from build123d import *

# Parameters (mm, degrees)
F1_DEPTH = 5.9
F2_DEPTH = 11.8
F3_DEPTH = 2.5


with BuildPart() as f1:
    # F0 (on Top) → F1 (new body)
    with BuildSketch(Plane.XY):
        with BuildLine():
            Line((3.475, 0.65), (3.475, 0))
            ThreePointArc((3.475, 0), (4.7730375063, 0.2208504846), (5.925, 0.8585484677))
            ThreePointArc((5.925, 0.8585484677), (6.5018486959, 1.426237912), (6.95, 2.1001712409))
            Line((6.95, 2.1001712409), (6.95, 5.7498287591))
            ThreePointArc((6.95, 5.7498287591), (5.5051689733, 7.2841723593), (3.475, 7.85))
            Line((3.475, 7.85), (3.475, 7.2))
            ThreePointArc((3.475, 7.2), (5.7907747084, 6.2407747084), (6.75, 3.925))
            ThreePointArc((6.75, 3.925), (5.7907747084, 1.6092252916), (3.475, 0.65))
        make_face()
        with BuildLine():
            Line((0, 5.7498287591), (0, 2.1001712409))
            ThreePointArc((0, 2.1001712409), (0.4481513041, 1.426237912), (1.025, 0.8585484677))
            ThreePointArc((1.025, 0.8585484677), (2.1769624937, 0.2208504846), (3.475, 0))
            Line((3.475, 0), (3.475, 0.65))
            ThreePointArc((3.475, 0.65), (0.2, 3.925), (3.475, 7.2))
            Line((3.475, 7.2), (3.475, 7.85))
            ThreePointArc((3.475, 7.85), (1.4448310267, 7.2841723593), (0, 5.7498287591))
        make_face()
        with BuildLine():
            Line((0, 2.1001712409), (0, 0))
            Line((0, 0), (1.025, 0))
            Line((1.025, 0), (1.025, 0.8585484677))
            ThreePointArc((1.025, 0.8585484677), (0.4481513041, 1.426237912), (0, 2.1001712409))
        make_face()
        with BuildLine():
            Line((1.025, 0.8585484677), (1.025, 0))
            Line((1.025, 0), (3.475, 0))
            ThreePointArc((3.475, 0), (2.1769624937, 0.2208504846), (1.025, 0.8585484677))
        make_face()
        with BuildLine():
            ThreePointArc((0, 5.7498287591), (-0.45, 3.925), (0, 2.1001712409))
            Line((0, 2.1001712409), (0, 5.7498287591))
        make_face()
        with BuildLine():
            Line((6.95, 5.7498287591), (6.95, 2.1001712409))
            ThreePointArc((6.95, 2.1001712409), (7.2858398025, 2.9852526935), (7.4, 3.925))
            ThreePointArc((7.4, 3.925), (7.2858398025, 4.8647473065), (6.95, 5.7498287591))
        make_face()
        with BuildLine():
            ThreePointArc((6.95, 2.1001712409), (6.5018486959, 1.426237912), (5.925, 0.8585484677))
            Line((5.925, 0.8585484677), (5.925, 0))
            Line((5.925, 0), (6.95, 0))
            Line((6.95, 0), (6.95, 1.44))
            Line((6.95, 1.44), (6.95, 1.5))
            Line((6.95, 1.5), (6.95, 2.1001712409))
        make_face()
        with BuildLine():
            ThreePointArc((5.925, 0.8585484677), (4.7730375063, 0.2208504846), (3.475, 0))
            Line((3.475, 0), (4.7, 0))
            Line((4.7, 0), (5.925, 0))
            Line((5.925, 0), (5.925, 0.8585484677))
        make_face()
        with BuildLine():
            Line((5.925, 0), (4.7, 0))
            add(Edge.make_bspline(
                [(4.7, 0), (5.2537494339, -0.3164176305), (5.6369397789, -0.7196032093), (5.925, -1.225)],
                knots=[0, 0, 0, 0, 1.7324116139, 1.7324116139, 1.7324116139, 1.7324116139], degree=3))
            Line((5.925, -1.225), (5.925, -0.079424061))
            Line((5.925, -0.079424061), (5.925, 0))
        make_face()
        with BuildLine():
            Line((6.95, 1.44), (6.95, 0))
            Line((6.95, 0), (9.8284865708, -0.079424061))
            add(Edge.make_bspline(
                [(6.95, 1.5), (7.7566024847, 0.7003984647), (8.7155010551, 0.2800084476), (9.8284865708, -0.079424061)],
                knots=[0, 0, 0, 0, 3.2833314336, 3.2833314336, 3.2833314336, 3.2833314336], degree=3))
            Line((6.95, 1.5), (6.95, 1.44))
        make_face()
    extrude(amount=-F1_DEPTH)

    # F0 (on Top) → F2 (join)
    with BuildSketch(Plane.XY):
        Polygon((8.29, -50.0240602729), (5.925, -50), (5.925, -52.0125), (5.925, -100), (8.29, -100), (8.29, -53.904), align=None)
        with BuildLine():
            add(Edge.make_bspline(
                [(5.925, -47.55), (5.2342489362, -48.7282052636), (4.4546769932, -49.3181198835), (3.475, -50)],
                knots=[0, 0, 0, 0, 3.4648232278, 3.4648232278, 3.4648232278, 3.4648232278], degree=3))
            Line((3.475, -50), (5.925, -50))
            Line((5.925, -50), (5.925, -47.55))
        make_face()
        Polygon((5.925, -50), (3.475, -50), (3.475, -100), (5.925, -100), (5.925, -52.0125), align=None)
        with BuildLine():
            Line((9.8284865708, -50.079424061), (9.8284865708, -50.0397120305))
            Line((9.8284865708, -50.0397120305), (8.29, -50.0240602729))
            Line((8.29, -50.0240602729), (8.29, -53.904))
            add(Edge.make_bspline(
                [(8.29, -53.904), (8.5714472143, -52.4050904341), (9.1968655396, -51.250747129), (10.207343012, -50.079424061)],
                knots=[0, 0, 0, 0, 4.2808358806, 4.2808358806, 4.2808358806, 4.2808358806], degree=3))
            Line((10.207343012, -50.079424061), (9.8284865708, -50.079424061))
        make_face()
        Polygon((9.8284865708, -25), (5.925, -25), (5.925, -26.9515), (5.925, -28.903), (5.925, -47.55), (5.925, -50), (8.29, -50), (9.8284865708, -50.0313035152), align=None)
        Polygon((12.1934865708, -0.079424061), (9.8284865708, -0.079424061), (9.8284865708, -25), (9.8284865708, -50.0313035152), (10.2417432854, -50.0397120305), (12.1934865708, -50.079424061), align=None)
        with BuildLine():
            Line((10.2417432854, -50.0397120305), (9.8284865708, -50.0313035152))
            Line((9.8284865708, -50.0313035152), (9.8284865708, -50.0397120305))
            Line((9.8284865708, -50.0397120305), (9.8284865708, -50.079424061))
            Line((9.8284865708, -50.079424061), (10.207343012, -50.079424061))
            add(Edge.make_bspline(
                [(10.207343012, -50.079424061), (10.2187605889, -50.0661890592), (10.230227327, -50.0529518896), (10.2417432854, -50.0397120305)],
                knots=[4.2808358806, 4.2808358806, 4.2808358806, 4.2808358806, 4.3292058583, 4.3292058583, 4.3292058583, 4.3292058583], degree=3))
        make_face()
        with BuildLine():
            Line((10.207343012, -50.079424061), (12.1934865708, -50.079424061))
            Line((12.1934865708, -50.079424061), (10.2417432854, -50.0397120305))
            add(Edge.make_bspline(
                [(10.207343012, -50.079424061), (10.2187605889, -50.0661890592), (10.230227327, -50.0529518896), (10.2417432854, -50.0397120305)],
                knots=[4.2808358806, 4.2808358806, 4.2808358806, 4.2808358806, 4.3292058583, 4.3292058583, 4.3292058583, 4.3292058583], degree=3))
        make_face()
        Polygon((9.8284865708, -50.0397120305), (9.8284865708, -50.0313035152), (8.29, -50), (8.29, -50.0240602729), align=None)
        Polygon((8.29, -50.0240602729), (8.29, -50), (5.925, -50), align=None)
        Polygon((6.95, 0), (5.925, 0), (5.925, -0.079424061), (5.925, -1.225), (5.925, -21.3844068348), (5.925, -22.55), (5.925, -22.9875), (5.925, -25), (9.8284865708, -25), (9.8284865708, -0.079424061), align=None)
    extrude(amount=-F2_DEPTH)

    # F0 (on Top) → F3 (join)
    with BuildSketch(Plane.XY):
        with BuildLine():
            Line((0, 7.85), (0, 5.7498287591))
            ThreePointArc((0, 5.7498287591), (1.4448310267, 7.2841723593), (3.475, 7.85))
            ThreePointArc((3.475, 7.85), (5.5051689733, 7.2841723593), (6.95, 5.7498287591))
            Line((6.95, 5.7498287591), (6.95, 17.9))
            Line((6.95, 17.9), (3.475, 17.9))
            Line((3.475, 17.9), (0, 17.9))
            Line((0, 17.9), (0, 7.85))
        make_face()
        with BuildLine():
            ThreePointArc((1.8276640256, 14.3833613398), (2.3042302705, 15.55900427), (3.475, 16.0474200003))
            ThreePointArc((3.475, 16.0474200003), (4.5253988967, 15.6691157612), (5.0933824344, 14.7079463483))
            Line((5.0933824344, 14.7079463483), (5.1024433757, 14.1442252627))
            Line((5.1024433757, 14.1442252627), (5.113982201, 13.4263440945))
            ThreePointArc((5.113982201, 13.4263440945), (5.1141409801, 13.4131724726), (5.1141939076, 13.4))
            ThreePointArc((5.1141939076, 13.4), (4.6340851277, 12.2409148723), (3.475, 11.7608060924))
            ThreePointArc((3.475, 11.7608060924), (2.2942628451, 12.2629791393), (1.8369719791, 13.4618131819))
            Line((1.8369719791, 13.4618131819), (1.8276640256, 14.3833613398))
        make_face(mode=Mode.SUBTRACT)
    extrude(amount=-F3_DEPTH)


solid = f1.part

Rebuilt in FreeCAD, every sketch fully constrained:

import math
import FreeCAD as App
import Part
import Sketcher
Q = App.Units.Quantity

doc = App.newDocument("Part")
body = doc.addObject("PartDesign::Body", "Body")

# Sketch on XY plane
sketch1 = doc.addObject("Sketcher::SketchObject", "Sketch")
body.addObject(sketch1)
sketch1.AttachmentSupport = (doc.XY_Plane, [""])
sketch1.MapMode = "FlatFace"
sketch1.addGeometry([
    Part.LineSegment(App.Vector(6.95, 1.5, 0), App.Vector(6.95, 2.100171, 0)),  # 0
    Part.ArcOfCircle(Part.Circle(App.Vector(3.475, 3.925, 0), App.Vector(0, 0, 1), 3.925), math.radians(-27.705338), math.radians(0)),  # 1
    Part.ArcOfCircle(Part.Circle(App.Vector(3.475, 3.925, 0), App.Vector(0, 0, 1), 3.925), math.radians(0), math.radians(27.705338)),  # 2
    Part.ArcOfCircle(Part.Circle(App.Vector(3.475, 3.925, 0), App.Vector(0, 0, 1), 3.925), math.radians(27.705338), math.radians(90)),  # 3
    Part.ArcOfCircle(Part.Circle(App.Vector(3.475, 3.925, 0), App.Vector(0, 0, 1), 3.925), math.radians(90), math.radians(152.294662)),  # 4
    Part.ArcOfCircle(Part.Circle(App.Vector(3.475, 3.925, 0), App.Vector(0, 0, 1), 3.925), math.radians(152.294662), math.radians(207.705338)),  # 5
    Part.LineSegment(App.Vector(0, 2.100171, 0), App.Vector(0, 0, 0)),  # 6
    Part.LineSegment(App.Vector(0, 0, 0), App.Vector(4.7, 0, 0)),  # 7
    Part.BSplineCurve([App.Vector(4.7, 0, 0), App.Vector(5.253749, -0.316418, 0), App.Vector(5.63694, -0.719603, 0), App.Vector(5.925, -1.225, 0)], [4, 4], [0, 1.732411614], False, 3, [1, 1, 1, 1], False),  # 8
    Part.LineSegment(App.Vector(5.925, -1.225, 0), App.Vector(5.925, 0, 0)),  # 9
    Part.LineSegment(App.Vector(5.925, 0, 0), App.Vector(6.95, 0, 0)),  # 10
    Part.LineSegment(App.Vector(6.95, 0, 0), App.Vector(9.828487, -0.079424, 0)),  # 11
    Part.BSplineCurve([App.Vector(6.95, 1.5, 0), App.Vector(7.756602, 0.700398, 0), App.Vector(8.715501, 0.280008, 0), App.Vector(9.828487, -0.079424, 0)], [4, 4], [0, 3.283331434], False, 3, [1, 1, 1, 1], False),  # 12
    Part.ArcOfCircle(Part.Circle(App.Vector(3.475, 3.925, 0), App.Vector(0, 0, 1), 3.275), math.radians(0), math.radians(90)),  # 13
    Part.ArcOfCircle(Part.Circle(App.Vector(3.475, 3.925, 0), App.Vector(0, 0, 1), 3.275), math.radians(-90), math.radians(0)),  # 14
    Part.ArcOfCircle(Part.Circle(App.Vector(3.475, 3.925, 0), App.Vector(0, 0, 1), 3.275), math.radians(90), math.radians(270)),  # 15
], False)
sketch1.addConstraint([
    Sketcher.Constraint("Block", 8),
    Sketcher.Constraint("Block", 12),
    Sketcher.Constraint("Coincident", 0, 2, 1, 1),
    Sketcher.Constraint("Tangent", 1, 2, 2, 1),
    Sketcher.Constraint("Tangent", 2, 2, 3, 1),
    Sketcher.Constraint("Tangent", 3, 2, 4, 1),
    Sketcher.Constraint("Tangent", 4, 2, 5, 1),
    Sketcher.Constraint("Coincident", 5, 2, 6, 1),
    Sketcher.Constraint("Coincident", 6, 2, 7, 1),
    Sketcher.Constraint("Coincident", 7, 2, 8, 1),
    Sketcher.Constraint("Coincident", 8, 2, 9, 1),
    Sketcher.Constraint("Coincident", 9, 2, 10, 1),
    Sketcher.Constraint("Coincident", 10, 2, 11, 1),
    Sketcher.Constraint("Coincident", 11, 2, 12, 2),
    Sketcher.Constraint("Coincident", 12, 1, 0, 1),
    Sketcher.Constraint("Tangent", 13, 1, 14, 2),
    Sketcher.Constraint("Tangent", 14, 1, 15, 2),
    Sketcher.Constraint("Tangent", 15, 1, 13, 2),
    Sketcher.Constraint("Vertical", 0),
    Sketcher.Constraint("Vertical", 6),
    Sketcher.Constraint("Horizontal", 7),
    Sketcher.Constraint("Vertical", 9),
    Sketcher.Constraint("Horizontal", 10),
    Sketcher.Constraint("Coincident", 3, 3, 1, 3),
    Sketcher.Constraint("Coincident", 5, 3, 1, 3),
    Sketcher.Constraint("Coincident", 13, 3, 1, 3),
    Sketcher.Constraint("PointOnObject", 4, 2, -2),
    Sketcher.Constraint("PointOnObject", 5, 2, -2),
    Sketcher.Constraint("PointOnObject", 9, 2, -1),
    Sketcher.Constraint("Horizontal", 15, 3, 1, 2),
    Sketcher.Constraint("Horizontal", 2, 2, 4, 2),
    Sketcher.Constraint("Horizontal", 0, 2, 5, 2),
    Sketcher.Constraint("Horizontal", 1, 2, 13, 1),
    Sketcher.Constraint("Vertical", 15, 3, 3, 2),
    Sketcher.Constraint("Vertical", 2, 2, 10, 2),
    Sketcher.Constraint("Vertical", 3, 2, 14, 1),
    Sketcher.Constraint("Vertical", 14, 1, 15, 1),
    Sketcher.Constraint("Radius", 1, Q("3.925 mm")),
    Sketcher.Constraint("Radius", 13, Q("3.275 mm")),
    Sketcher.Constraint("DistanceY", -1, 1, 15, 1, Q("7.2 mm")),
])
pad1 = doc.addObject("PartDesign::Pad", "Pad")
body.addObject(pad1)
pad1.Profile = sketch1
pad1.Length = 5.9
pad1.Reversed = True

# Sketch on XY plane
sketch2 = doc.addObject("Sketcher::SketchObject", "Sketch001")
body.addObject(sketch2)
sketch2.AttachmentSupport = (doc.XY_Plane, [""])
sketch2.MapMode = "FlatFace"
sketch2.addGeometry([
    Part.LineSegment(App.Vector(12.193487, -50.079424, 0), App.Vector(12.193487, -0.079424, 0)),  # 0
    Part.LineSegment(App.Vector(12.193487, -0.079424, 0), App.Vector(9.828487, -0.079424, 0)),  # 1
    Part.LineSegment(App.Vector(9.828487, -0.079424, 0), App.Vector(6.95, 0, 0)),  # 2
    Part.LineSegment(App.Vector(6.95, 0, 0), App.Vector(5.925, 0, 0)),  # 3
    Part.LineSegment(App.Vector(5.925, 0, 0), App.Vector(5.925, -47.55, 0)),  # 4
    Part.BSplineCurve([App.Vector(5.925, -47.55, 0), App.Vector(5.234249, -48.728205, 0), App.Vector(4.454677, -49.31812, 0), App.Vector(3.475, -50, 0)], [4, 4], [0, 3.464823228], False, 3, [1, 1, 1, 1], False),  # 5
    Part.LineSegment(App.Vector(3.475, -50, 0), App.Vector(3.475, -100, 0)),  # 6
    Part.LineSegment(App.Vector(3.475, -100, 0), App.Vector(8.29, -100, 0)),  # 7
    Part.LineSegment(App.Vector(8.29, -100, 0), App.Vector(8.29, -53.904, 0)),  # 8
    Part.BSplineCurve([App.Vector(8.29, -53.904, 0), App.Vector(8.571447, -52.40509, 0), App.Vector(9.196866, -51.250747, 0), App.Vector(10.207343, -50.079424, 0)], [4, 4], [0, 4.280835881], False, 3, [1, 1, 1, 1], False),  # 9
    Part.LineSegment(App.Vector(10.207343, -50.079424, 0), App.Vector(12.193487, -50.079424, 0)),  # 10
], False)
sketch2.addConstraint([
    Sketcher.Constraint("Block", 5),
    Sketcher.Constraint("Block", 9),
    Sketcher.Constraint("Coincident", 0, 2, 1, 1),
    Sketcher.Constraint("Coincident", 1, 2, 2, 1),
    Sketcher.Constraint("Coincident", 2, 2, 3, 1),
    Sketcher.Constraint("Coincident", 3, 2, 4, 1),
    Sketcher.Constraint("Coincident", 4, 2, 5, 1),
    Sketcher.Constraint("Coincident", 5, 2, 6, 1),
    Sketcher.Constraint("Coincident", 6, 2, 7, 1),
    Sketcher.Constraint("Coincident", 7, 2, 8, 1),
    Sketcher.Constraint("Coincident", 8, 2, 9, 1),
    Sketcher.Constraint("Coincident", 9, 2, 10, 1),
    Sketcher.Constraint("Coincident", 10, 2, 0, 1),
    Sketcher.Constraint("Vertical", 0),
    Sketcher.Constraint("Horizontal", 1),
    Sketcher.Constraint("Horizontal", 3),
    Sketcher.Constraint("Vertical", 4),
    Sketcher.Constraint("Vertical", 6),
    Sketcher.Constraint("Horizontal", 7),
    Sketcher.Constraint("Vertical", 8),
    Sketcher.Constraint("Horizontal", 10),
    Sketcher.Constraint("PointOnObject", 2, 2, -1),
    Sketcher.Constraint("Equal", 0, 6),
    Sketcher.Constraint("DistanceY", 0, 1, 0, 2, Q("50 mm")),
    Sketcher.Constraint("DistanceX", 1, 2, 1, 1, Q("2.365 mm")),
    Sketcher.Constraint("DistanceX", 3, 2, 3, 1, Q("1.025 mm")),
    Sketcher.Constraint("DistanceX", 10, 1, 10, 2, Q("1.986144 mm")),
])
pad2 = doc.addObject("PartDesign::Pad", "Pad001")
body.addObject(pad2)
pad2.Profile = sketch2
pad2.Length = 11.8
pad2.Reversed = True

# Sketch on XY plane
sketch3 = doc.addObject("Sketcher::SketchObject", "Sketch002")
body.addObject(sketch3)
sketch3.AttachmentSupport = (doc.XY_Plane, [""])
sketch3.MapMode = "FlatFace"
sketch3.addGeometry([
    Part.ArcOfCircle(Part.Circle(App.Vector(3.475, 3.925, 0), App.Vector(0, 0, 1), 3.925), math.radians(90), math.radians(152)),  # 0
    Part.ArcOfCircle(Part.Circle(App.Vector(3.475, 3.925, 0), App.Vector(0, 0, 1), 3.925), math.radians(28), math.radians(90)),  # 1
    Part.LineSegment(App.Vector(6.95, 5.75, 0), App.Vector(6.95, 17.9, 0)),  # 2
    Part.LineSegment(App.Vector(6.95, 17.9, 0), App.Vector(0, 17.9, 0)),  # 3
    Part.LineSegment(App.Vector(0, 17.9, 0), App.Vector(0, 5.75, 0)),  # 4
    Part.LineSegment(App.Vector(1.837, 13.462, 0), App.Vector(1.828, 14.383, 0)),  # 5
    Part.ArcOfCircle(Part.Circle(App.Vector(3.475, 14.4, 0), App.Vector(0, 0, 1), 1.647), math.radians(90), math.radians(181)),  # 6
    Part.ArcOfCircle(Part.Circle(App.Vector(3.475, 14.4, 0), App.Vector(0, 0, 1), 1.647), math.radians(11), math.radians(90)),  # 7
    Part.LineSegment(App.Vector(5.093, 14.708, 0), App.Vector(5.102, 14.144, 0)),  # 8
    Part.LineSegment(App.Vector(5.102, 14.144, 0), App.Vector(5.114, 13.426, 0)),  # 9
    Part.ArcOfCircle(Part.Circle(App.Vector(3.475, 13.4, 0), App.Vector(0, 0, 1), 1.639), math.radians(0), math.radians(0.92)),  # 10
    Part.ArcOfCircle(Part.Circle(App.Vector(3.475, 13.4, 0), App.Vector(0, 0, 1), 1.639), math.radians(-90), math.radians(0)),  # 11
    Part.ArcOfCircle(Part.Circle(App.Vector(3.475, 13.4, 0), App.Vector(0, 0, 1), 1.639), math.radians(178), math.radians(270)),  # 12
], False)
sketch3.addConstraint([
    Sketcher.Constraint("Tangent", 0, 1, 1, 2),
    Sketcher.Constraint("Coincident", 1, 1, 2, 1),
    Sketcher.Constraint("Coincident", 2, 2, 3, 1),
    Sketcher.Constraint("Coincident", 3, 2, 4, 1),
    Sketcher.Constraint("Coincident", 4, 2, 0, 2),
    Sketcher.Constraint("Tangent", 5, 2, 6, 2),
    Sketcher.Constraint("Tangent", 6, 1, 7, 2),
    Sketcher.Constraint("Coincident", 7, 1, 8, 1),
    Sketcher.Constraint("Coincident", 8, 2, 9, 1),
    Sketcher.Constraint("Tangent", 9, 2, 10, 2),
    Sketcher.Constraint("Tangent", 10, 1, 11, 2),
    Sketcher.Constraint("Tangent", 11, 1, 12, 2),
    Sketcher.Constraint("Coincident", 12, 1, 5, 1),
    Sketcher.Constraint("Vertical", 2),
    Sketcher.Constraint("Horizontal", 3),
    Sketcher.Constraint("Vertical", 4),
    Sketcher.Constraint("Coincident", 12, 3, 10, 3),
    Sketcher.Constraint("Equal", 0, 1),
    Sketcher.Constraint("Equal", 6, 7),
    Sketcher.Constraint("PointOnObject", 3, 2, -2),
    Sketcher.Constraint("Parallel", 8, 9),
    Sketcher.Constraint("Horizontal", 1, 1, 4, 2),
    Sketcher.Constraint("Horizontal", 12, 3, 10, 1),
    Sketcher.Constraint("Vertical", 1, 3, 6, 3),
    Sketcher.Constraint("Vertical", 7, 3, 10, 3),
    Sketcher.Constraint("Vertical", 12, 3, 0, 1),
    Sketcher.Constraint("Vertical", 0, 1, 6, 1),
    Sketcher.Constraint("Vertical", 6, 1, 11, 1),
    Sketcher.Constraint("Radius", 0, Q("3.925 mm")),
    Sketcher.Constraint("DistanceY", 10, 3, 6, 3, Q("1 mm")),
    Sketcher.Constraint("DistanceX", 3, 2, 3, 1, Q("6.95 mm")),
    Sketcher.Constraint("DistanceY", -1, 1, 6, 3, Q("14.4 mm")),
    Sketcher.Constraint("DistanceY", -1, 1, 2, 2, Q("17.9 mm")),
    Sketcher.Constraint("DistanceY", -1, 1, 0, 1, Q("7.85 mm")),
    Sketcher.Constraint("Radius", 6, Q("1.64742 mm")),
    Sketcher.Constraint("Radius", 10, Q("1.639193 mm")),
    Sketcher.Constraint("DistanceX", 7, 1, 9, 2, Q("0.0206 mm")),
    Sketcher.Constraint("DistanceY", -1, 1, 5, 2, Q("14.383361 mm")),
    Sketcher.Constraint("DistanceX", 7, 1, 8, 2, Q("0.009061 mm")),
])
pad3 = doc.addObject("PartDesign::Pad", "Pad002")
body.addObject(pad3)
pad3.Profile = sketch3
pad3.Length = 2.5
pad3.Reversed = True

doc.recompute()
